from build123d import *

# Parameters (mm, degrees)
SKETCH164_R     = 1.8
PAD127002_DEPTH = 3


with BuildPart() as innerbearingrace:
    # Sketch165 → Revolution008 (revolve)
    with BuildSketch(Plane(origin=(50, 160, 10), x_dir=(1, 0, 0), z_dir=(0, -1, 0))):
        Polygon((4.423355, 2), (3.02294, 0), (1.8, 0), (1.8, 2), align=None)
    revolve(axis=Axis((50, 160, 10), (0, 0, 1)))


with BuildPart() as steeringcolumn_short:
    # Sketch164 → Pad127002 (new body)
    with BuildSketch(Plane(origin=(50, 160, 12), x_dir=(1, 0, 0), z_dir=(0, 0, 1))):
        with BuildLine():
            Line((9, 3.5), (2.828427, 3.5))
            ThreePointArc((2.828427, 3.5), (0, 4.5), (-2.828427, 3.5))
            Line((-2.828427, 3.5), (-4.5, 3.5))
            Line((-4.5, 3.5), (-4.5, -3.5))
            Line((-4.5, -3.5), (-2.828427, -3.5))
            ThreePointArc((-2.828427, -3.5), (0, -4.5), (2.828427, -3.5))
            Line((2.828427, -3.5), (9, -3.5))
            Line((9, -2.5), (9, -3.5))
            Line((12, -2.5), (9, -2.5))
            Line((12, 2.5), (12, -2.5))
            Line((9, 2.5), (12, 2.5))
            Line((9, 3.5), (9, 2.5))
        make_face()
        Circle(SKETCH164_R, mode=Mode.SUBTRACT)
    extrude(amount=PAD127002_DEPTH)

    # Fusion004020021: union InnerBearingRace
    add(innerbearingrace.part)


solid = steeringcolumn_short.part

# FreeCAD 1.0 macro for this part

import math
import FreeCAD as App
import Part
import Sketcher

V = App.Vector
Q = App.Units.Quantity

doc = App.newDocument("Part")
body = doc.addObject("PartDesign::Body", "Body")

sketch1 = body.newObject("Sketcher::SketchObject", "Sketch")
sketch1.AttachmentSupport = (doc.getObject("XZ_Plane"), [""])
sketch1.MapMode = "FlatFace"
sketch1.AttachmentOffset = App.Placement(V(0, 0, -160), App.Rotation())
sketch1.addGeometry(Part.LineSegment(V(53.02294, 10, 0), V(54.423355, 12, 0)), False)
sketch1.addGeometry(Part.LineSegment(V(54.423355, 12, 0), V(51.8, 12, 0)), False)
sketch1.addGeometry(Part.LineSegment(V(51.8, 12, 0), V(51.8, 10, 0)), False)
sketch1.addGeometry(Part.LineSegment(V(51.8, 10, 0), V(53.02294, 10, 0)), False)
sketch1.addGeometry(Part.LineSegment(V(50, 10, 0), V(50, 12, 0)), True)
sketch1.addConstraint(Sketcher.Constraint("Coincident", 0, 2, 1, 1))
sketch1.addConstraint(Sketcher.Constraint("Coincident", 1, 2, 2, 1))
sketch1.addConstraint(Sketcher.Constraint("Coincident", 2, 2, 3, 1))
sketch1.addConstraint(Sketcher.Constraint("Coincident", 3, 2, 0, 1))
sketch1.addConstraint(Sketcher.Constraint("Horizontal", 1))
sketch1.addConstraint(Sketcher.Constraint("Vertical", 2))
sketch1.addConstraint(Sketcher.Constraint("Horizontal", 3))
sketch1.addConstraint(Sketcher.Constraint("Vertical", 4))
sketch1.addConstraint(Sketcher.Constraint("Horizontal", 3, 2, 4, 1))
sketch1.addConstraint(Sketcher.Constraint("Horizontal", 1, 2, 4, 2))
sketch1.addConstraint(Sketcher.Constraint("DistanceY", 2, 2, 2, 1, 2.0))
sketch1.addConstraint(Sketcher.Constraint("Angle", 0, Q("55.000001 deg")))
sketch1.addConstraint(Sketcher.Constraint("DistanceY", -1, 1, 0, 2, 12.0))
sketch1.addConstraint(Sketcher.Constraint("DistanceX", -1, 1, 4, 1, 50.0))
sketch1.addConstraint(Sketcher.Constraint("DistanceX", -1, 1, 1, 2, 51.8))
sketch1.addConstraint(Sketcher.Constraint("DistanceX", 3, 1, 3, 2, 1.22294))
revolution = body.newObject("PartDesign::Revolution", "Revolution")
revolution.Profile = sketch1
revolution.ReferenceAxis = (sketch1, ["Axis0"])
revolution.Angle = 360
body2 = doc.addObject("PartDesign::Body", "Body001")

sketch2 = body2.newObject("Sketcher::SketchObject", "Sketch001")
sketch2.AttachmentSupport = (doc.getObject("XY_Plane001"), [""])
sketch2.MapMode = "FlatFace"
sketch2.AttachmentOffset = App.Placement(V(0, 0, 12), App.Rotation())
sketch2.addGeometry(Part.LineSegment(V(59, 163.5, 0), V(52.828427, 163.5, 0)), False)
sketch2.addGeometry(Part.ArcOfCircle(Part.Circle(V(50, 160, 0), V(0, 0, 1), 4.5), math.radians(51.057557), math.radians(128.942443)), False)
sketch2.addGeometry(Part.LineSegment(V(47.171573, 163.5, 0), V(45.5, 163.5, 0)), False)
sketch2.addGeometry(Part.LineSegment(V(45.5, 163.5, 0), V(45.5, 156.5, 0)), False)
sketch2.addGeometry(Part.LineSegment(V(45.5, 156.5, 0), V(47.171573, 156.5, 0)), False)
sketch2.addGeometry(Part.ArcOfCircle(Part.Circle(V(50, 160, 0), V(0, 0, 1), 4.5), math.radians(-128.942443), math.radians(-51.057557)), False)
sketch2.addGeometry(Part.LineSegment(V(52.828427, 156.5, 0), V(59, 156.5, 0)), False)
sketch2.addGeometry(Part.LineSegment(V(59, 156.5, 0), V(59, 157.5, 0)), False)
sketch2.addGeometry(Part.LineSegment(V(59, 157.5, 0), V(62, 157.5, 0)), False)
sketch2.addGeometry(Part.LineSegment(V(62, 157.5, 0), V(62, 162.5, 0)), False)
sketch2.addGeometry(Part.LineSegment(V(62, 162.5, 0), V(59, 162.5, 0)), False)
sketch2.addGeometry(Part.LineSegment(V(59, 162.5, 0), V(59, 163.5, 0)), False)
sketch2.addGeometry(Part.Circle(V(50, 160, 0), V(0, 0, 1), 1.8), False)
sketch2.addConstraint(Sketcher.Constraint("Coincident", 0, 2, 1, 1))
sketch2.addConstraint(Sketcher.Constraint("Coincident", 1, 2, 2, 1))
sketch2.addConstraint(Sketcher.Constraint("Coincident", 2, 2, 3, 1))
sketch2.addConstraint(Sketcher.Constraint("Coincident", 3, 2, 4, 1))
sketch2.addConstraint(Sketcher.Constraint("Coincident", 4, 2, 5, 1))
sketch2.addConstraint(Sketcher.Constraint("Coincident", 5, 2, 6, 1))
sketch2.addConstraint(Sketcher.Constraint("Coincident", 6, 2, 7, 1))
sketch2.addConstraint(Sketcher.Constraint("Coincident", 7, 2, 8, 1))
sketch2.addConstraint(Sketcher.Constraint("Coincident", 8, 2, 9, 1))
sketch2.addConstraint(Sketcher.Constraint("Coincident", 9, 2, 10, 1))
sketch2.addConstraint(Sketcher.Constraint("Coincident", 10, 2, 11, 1))
sketch2.addConstraint(Sketcher.Constraint("Coincident", 11, 2, 0, 1))
sketch2.addConstraint(Sketcher.Constraint("Horizontal", 0))
sketch2.addConstraint(Sketcher.Constraint("Horizontal", 2))
sketch2.addConstraint(Sketcher.Constraint("Vertical", 3))
sketch2.addConstraint(Sketcher.Constraint("Horizontal", 4))
sketch2.addConstraint(Sketcher.Constraint("Horizontal", 6))
sketch2.addConstraint(Sketcher.Constraint("Vertical", 7))
sketch2.addConstraint(Sketcher.Constraint("Horizontal", 8))
sketch2.addConstraint(Sketcher.Constraint("Vertical", 9))
sketch2.addConstraint(Sketcher.Constraint("Horizontal", 10))
sketch2.addConstraint(Sketcher.Constraint("Vertical", 11))
sketch2.addConstraint(Sketcher.Constraint("Coincident", 5, 3, 1, 3))
sketch2.addConstraint(Sketcher.Constraint("Coincident", 12, 3, 1, 3))
sketch2.addConstraint(Sketcher.Constraint("Equal", 1, 5))
sketch2.addConstraint(Sketcher.Constraint("Horizontal", 0, 2, 1, 2))
sketch2.addConstraint(Sketcher.Constraint("Horizontal", 4, 2, 5, 2))
sketch2.addConstraint(Sketcher.Constraint("Vertical", 1, 2, 4, 2))
sketch2.addConstraint(Sketcher.Constraint("Vertical", 7, 2, 10, 2))
sketch2.addConstraint(Sketcher.Constraint("Equal", 7, 11))
sketch2.addConstraint(Sketcher.Constraint("Diameter", 12, 3.6))
sketch2.addConstraint(Sketcher.Constraint("Radius", 1, 4.5))
sketch2.addConstraint(Sketcher.Constraint("DistanceX", 8, 1, 8, 2, 3.0))
sketch2.addConstraint(Sketcher.Constraint("DistanceY", 3, 2, 3, 1, 7.0))
sketch2.addConstraint(Sketcher.Constraint("DistanceY", 7, 1, 7, 2, 1.0))
sketch2.addConstraint(Sketcher.Constraint("DistanceX", -1, 1, 1, 3, 50.0))
sketch2.addConstraint(Sketcher.Constraint("DistanceY", -1, 1, 1, 3, 160.0))
sketch2.addConstraint(Sketcher.Constraint("DistanceX", -1, 1, 6, 2, 59.0))
sketch2.addConstraint(Sketcher.Constraint("DistanceX", -1, 1, 2, 2, 45.5))
pad1 = body2.newObject("PartDesign::Pad", "Pad")
pad1.Profile = sketch2
pad1.Length = 3
doc.recompute()

boolean = body2.newObject("PartDesign::Boolean", "Boolean")
boolean.Type = "Fuse"
boolean.addObjects([body])

doc.recompute()
